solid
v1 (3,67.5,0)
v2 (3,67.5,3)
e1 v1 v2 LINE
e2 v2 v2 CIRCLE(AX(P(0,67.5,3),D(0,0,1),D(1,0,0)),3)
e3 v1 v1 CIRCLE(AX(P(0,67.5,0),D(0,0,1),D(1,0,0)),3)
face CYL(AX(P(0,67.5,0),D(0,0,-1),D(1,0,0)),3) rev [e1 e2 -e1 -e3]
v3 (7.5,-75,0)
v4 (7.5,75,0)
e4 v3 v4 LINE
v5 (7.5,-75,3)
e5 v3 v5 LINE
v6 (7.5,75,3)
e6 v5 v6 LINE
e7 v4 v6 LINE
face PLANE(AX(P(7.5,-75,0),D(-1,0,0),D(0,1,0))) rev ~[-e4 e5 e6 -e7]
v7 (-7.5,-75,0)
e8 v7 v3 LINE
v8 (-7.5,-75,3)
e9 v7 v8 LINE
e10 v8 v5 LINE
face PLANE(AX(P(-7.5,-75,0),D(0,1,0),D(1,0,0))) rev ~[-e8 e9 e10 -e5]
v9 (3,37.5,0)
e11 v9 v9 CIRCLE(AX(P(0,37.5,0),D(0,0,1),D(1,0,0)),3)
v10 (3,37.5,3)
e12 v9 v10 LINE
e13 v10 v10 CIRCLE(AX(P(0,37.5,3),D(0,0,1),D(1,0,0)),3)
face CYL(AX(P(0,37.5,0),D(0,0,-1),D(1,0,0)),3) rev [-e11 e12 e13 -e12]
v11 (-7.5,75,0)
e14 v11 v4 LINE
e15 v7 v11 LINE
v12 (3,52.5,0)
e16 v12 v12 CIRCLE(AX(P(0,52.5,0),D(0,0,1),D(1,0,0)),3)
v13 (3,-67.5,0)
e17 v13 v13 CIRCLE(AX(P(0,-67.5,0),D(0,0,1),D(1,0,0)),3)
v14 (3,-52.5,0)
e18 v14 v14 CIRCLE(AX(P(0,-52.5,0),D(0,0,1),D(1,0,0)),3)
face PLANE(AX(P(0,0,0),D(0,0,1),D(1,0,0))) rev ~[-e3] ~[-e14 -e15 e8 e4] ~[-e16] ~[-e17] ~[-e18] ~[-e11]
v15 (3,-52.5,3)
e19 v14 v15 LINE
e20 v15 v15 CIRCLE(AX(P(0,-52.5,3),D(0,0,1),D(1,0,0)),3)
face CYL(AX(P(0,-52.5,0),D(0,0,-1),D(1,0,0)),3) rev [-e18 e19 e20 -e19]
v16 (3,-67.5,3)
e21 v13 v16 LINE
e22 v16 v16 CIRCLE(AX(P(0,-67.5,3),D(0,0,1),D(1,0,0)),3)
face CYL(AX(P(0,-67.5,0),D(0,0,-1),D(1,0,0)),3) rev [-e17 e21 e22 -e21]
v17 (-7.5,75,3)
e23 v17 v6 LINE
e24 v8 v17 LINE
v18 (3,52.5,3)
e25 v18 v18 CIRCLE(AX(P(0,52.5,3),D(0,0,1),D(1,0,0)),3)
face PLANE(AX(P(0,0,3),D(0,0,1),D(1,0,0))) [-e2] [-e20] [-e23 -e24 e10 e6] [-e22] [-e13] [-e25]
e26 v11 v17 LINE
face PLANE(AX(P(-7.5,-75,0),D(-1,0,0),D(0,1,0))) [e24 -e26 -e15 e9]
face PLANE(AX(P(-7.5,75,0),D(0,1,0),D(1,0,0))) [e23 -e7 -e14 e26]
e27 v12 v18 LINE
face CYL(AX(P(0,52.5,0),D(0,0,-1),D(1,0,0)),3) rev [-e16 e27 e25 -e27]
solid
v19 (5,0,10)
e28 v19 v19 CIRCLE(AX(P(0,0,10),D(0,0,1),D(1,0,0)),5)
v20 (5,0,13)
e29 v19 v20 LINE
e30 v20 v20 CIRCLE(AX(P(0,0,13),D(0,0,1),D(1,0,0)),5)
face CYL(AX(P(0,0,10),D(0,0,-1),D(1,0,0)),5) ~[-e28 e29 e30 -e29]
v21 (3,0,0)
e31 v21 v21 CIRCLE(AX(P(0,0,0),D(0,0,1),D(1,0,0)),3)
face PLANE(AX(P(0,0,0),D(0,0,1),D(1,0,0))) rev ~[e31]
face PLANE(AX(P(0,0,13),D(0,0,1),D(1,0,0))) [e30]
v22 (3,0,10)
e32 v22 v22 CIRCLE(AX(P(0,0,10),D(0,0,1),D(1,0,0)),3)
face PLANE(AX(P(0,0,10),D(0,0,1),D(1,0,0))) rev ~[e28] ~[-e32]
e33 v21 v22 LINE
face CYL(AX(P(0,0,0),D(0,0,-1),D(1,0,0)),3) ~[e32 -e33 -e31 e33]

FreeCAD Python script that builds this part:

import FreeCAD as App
import Part
import Sketcher
from FreeCAD import Vector

doc = App.newDocument("Part")
params = doc.addObject("Spreadsheet::Sheet", "Params")
for row, (alias, value) in enumerate([
    ("sketch1_diameter", "6 mm"),
    ("sketch1_width", "15 mm"),
    ("sketch1_height", "150 mm"),
    ("pad1_length", "3 mm"),
    ("sketch2_diameter", "6 mm"),
    ("pad2_length", "10 mm"),
    ("sketch3_diameter", "10 mm"),
    ("pad3_length", "3 mm"),
], start=1):
    params.set(f"A{row}", alias)
    params.set(f"B{row}", "=" + value)
    params.setAlias(f"B{row}", alias)

body = doc.addObject("PartDesign::Body", "Body")

# Sketch on XY plane
sketch1 = doc.addObject("Sketcher::SketchObject", "Sketch")
body.addObject(sketch1)
sketch1.AttachmentSupport = (doc.XY_Plane, [""])
sketch1.MapMode = "FlatFace"
sketch1.addGeometry(Part.LineSegment(Vector(-7.5, 75, 0), Vector(-7.5, -75, 0)), False)
sketch1.addGeometry(Part.LineSegment(Vector(-7.5, -75, 0), Vector(7.5, -75, 0)), False)
sketch1.addGeometry(Part.LineSegment(Vector(7.5, -75, 0), Vector(7.5, 75, 0)), False)
sketch1.addGeometry(Part.LineSegment(Vector(7.5, 75, 0), Vector(-7.5, 75, 0)), False)
sketch1.addGeometry(Part.Circle(Vector(0, -67.5, 0), Vector(0, 0, 1), 3), False)
sketch1.addGeometry(Part.Circle(Vector(0, -52.5, 0), Vector(0, 0, 1), 3), False)
sketch1.addGeometry(Part.Circle(Vector(0, 37.5, 0), Vector(0, 0, 1), 3), False)
sketch1.addGeometry(Part.Circle(Vector(0, 52.5, 0), Vector(0, 0, 1), 3), False)
sketch1.addGeometry(Part.Circle(Vector(0, 67.5, 0), Vector(0, 0, 1), 3), False)
sketch1.addConstraint(Sketcher.Constraint("Coincident", 0, 2, 1, 1))
sketch1.addConstraint(Sketcher.Constraint("Coincident", 1, 2, 2, 1))
sketch1.addConstraint(Sketcher.Constraint("Coincident", 2, 2, 3, 1))
sketch1.addConstraint(Sketcher.Constraint("Coincident", 3, 2, 0, 1))
sketch1.addConstraint(Sketcher.Constraint("Vertical", 0))
sketch1.addConstraint(Sketcher.Constraint("Horizontal", 1))
sketch1.addConstraint(Sketcher.Constraint("Vertical", 2))
sketch1.addConstraint(Sketcher.Constraint("Horizontal", 3))
sketch1.addConstraint(Sketcher.Constraint("Equal", 4, 5))
sketch1.addConstraint(Sketcher.Constraint("Equal", 5, 6))
sketch1.addConstraint(Sketcher.Constraint("Equal", 6, 7))
sketch1.addConstraint(Sketcher.Constraint("Equal", 7, 8))
sketch1.addConstraint(Sketcher.Constraint("Symmetric", 5, 3, 7, 3, -1, 1))
sketch1.addConstraint(Sketcher.Constraint("Symmetric", 4, 3, 8, 3, -1, 1))
sketch1.addConstraint(Sketcher.Constraint("Symmetric", 0, 2, 2, 2, -1, 1))
sketch1.addConstraint(Sketcher.Constraint("PointOnObject", 4, 3, -2))
sketch1.addConstraint(Sketcher.Constraint("PointOnObject", 5, 3, -2))
sketch1.addConstraint(Sketcher.Constraint("PointOnObject", 6, 3, -2))
sketch1.addConstraint(Sketcher.Constraint("Diameter", 4, 6.0))
sketch1.addConstraint(Sketcher.Constraint("DistanceX", 1, 1, 1, 2, 15.0))
sketch1.addConstraint(Sketcher.Constraint("DistanceY", 0, 2, 0, 1, 150.0))
sketch1.addConstraint(Sketcher.Constraint("DistanceY", 4, 3, 5, 3, 15.0))
sketch1.addConstraint(Sketcher.Constraint("DistanceY", 5, 3, 6, 3, 90.0))
sketch1.addConstraint(Sketcher.Constraint("DistanceY", 6, 3, 7, 3, 15.0))
sketch1.setExpression("Constraints[18]", "Params.sketch1_diameter")
sketch1.setExpression("Constraints[19]", "Params.sketch1_width")
sketch1.setExpression("Constraints[20]", "Params.sketch1_height")
pad1 = doc.addObject("PartDesign::Pad", "Pad")
body.addObject(pad1)
pad1.Profile = sketch1
pad1.setExpression("Length", "Params.pad1_length")
body2 = doc.addObject("PartDesign::Body", "Body001")

# Sketch on XY plane
sketch2 = doc.addObject("Sketcher::SketchObject", "Sketch001")
body2.addObject(sketch2)
sketch2.AttachmentSupport = (doc.getObject("XY_Plane001"), [""])
sketch2.MapMode = "FlatFace"
sketch2.addGeometry(Part.Circle(Vector(0, 0, 0), Vector(0, 0, 1), 3), False)
sketch2.addConstraint(Sketcher.Constraint("Coincident", 0, 3, -1, 1))
sketch2.addConstraint(Sketcher.Constraint("Diameter", 0, 6.0))
sketch2.setExpression("Constraints[1]", "Params.sketch2_diameter")
pad2 = doc.addObject("PartDesign::Pad", "Pad001")
body2.addObject(pad2)
pad2.Profile = sketch2
pad2.setExpression("Length", "Params.pad2_length")

# Sketch on XY plane
sketch3 = doc.addObject("Sketcher::SketchObject", "Sketch002")
body2.addObject(sketch3)
sketch3.AttachmentSupport = (doc.getObject("XY_Plane001"), [""])
sketch3.MapMode = "FlatFace"
sketch3.AttachmentOffset = App.Placement(Vector(0, 0, 10), App.Rotation())
sketch3.addGeometry(Part.Circle(Vector(0, 0, 0), Vector(0, 0, 1), 5), False)
sketch3.addConstraint(Sketcher.Constraint("Coincident", 0, 3, -1, 1))
sketch3.addConstraint(Sketcher.Constraint("Diameter", 0, 10.0))
sketch3.setExpression("Constraints[1]", "Params.sketch3_diameter")
pad3 = doc.addObject("PartDesign::Pad", "Pad002")
body2.addObject(pad3)
pad3.Profile = sketch3
pad3.setExpression("Length", "Params.pad3_length")

doc.recompute()
